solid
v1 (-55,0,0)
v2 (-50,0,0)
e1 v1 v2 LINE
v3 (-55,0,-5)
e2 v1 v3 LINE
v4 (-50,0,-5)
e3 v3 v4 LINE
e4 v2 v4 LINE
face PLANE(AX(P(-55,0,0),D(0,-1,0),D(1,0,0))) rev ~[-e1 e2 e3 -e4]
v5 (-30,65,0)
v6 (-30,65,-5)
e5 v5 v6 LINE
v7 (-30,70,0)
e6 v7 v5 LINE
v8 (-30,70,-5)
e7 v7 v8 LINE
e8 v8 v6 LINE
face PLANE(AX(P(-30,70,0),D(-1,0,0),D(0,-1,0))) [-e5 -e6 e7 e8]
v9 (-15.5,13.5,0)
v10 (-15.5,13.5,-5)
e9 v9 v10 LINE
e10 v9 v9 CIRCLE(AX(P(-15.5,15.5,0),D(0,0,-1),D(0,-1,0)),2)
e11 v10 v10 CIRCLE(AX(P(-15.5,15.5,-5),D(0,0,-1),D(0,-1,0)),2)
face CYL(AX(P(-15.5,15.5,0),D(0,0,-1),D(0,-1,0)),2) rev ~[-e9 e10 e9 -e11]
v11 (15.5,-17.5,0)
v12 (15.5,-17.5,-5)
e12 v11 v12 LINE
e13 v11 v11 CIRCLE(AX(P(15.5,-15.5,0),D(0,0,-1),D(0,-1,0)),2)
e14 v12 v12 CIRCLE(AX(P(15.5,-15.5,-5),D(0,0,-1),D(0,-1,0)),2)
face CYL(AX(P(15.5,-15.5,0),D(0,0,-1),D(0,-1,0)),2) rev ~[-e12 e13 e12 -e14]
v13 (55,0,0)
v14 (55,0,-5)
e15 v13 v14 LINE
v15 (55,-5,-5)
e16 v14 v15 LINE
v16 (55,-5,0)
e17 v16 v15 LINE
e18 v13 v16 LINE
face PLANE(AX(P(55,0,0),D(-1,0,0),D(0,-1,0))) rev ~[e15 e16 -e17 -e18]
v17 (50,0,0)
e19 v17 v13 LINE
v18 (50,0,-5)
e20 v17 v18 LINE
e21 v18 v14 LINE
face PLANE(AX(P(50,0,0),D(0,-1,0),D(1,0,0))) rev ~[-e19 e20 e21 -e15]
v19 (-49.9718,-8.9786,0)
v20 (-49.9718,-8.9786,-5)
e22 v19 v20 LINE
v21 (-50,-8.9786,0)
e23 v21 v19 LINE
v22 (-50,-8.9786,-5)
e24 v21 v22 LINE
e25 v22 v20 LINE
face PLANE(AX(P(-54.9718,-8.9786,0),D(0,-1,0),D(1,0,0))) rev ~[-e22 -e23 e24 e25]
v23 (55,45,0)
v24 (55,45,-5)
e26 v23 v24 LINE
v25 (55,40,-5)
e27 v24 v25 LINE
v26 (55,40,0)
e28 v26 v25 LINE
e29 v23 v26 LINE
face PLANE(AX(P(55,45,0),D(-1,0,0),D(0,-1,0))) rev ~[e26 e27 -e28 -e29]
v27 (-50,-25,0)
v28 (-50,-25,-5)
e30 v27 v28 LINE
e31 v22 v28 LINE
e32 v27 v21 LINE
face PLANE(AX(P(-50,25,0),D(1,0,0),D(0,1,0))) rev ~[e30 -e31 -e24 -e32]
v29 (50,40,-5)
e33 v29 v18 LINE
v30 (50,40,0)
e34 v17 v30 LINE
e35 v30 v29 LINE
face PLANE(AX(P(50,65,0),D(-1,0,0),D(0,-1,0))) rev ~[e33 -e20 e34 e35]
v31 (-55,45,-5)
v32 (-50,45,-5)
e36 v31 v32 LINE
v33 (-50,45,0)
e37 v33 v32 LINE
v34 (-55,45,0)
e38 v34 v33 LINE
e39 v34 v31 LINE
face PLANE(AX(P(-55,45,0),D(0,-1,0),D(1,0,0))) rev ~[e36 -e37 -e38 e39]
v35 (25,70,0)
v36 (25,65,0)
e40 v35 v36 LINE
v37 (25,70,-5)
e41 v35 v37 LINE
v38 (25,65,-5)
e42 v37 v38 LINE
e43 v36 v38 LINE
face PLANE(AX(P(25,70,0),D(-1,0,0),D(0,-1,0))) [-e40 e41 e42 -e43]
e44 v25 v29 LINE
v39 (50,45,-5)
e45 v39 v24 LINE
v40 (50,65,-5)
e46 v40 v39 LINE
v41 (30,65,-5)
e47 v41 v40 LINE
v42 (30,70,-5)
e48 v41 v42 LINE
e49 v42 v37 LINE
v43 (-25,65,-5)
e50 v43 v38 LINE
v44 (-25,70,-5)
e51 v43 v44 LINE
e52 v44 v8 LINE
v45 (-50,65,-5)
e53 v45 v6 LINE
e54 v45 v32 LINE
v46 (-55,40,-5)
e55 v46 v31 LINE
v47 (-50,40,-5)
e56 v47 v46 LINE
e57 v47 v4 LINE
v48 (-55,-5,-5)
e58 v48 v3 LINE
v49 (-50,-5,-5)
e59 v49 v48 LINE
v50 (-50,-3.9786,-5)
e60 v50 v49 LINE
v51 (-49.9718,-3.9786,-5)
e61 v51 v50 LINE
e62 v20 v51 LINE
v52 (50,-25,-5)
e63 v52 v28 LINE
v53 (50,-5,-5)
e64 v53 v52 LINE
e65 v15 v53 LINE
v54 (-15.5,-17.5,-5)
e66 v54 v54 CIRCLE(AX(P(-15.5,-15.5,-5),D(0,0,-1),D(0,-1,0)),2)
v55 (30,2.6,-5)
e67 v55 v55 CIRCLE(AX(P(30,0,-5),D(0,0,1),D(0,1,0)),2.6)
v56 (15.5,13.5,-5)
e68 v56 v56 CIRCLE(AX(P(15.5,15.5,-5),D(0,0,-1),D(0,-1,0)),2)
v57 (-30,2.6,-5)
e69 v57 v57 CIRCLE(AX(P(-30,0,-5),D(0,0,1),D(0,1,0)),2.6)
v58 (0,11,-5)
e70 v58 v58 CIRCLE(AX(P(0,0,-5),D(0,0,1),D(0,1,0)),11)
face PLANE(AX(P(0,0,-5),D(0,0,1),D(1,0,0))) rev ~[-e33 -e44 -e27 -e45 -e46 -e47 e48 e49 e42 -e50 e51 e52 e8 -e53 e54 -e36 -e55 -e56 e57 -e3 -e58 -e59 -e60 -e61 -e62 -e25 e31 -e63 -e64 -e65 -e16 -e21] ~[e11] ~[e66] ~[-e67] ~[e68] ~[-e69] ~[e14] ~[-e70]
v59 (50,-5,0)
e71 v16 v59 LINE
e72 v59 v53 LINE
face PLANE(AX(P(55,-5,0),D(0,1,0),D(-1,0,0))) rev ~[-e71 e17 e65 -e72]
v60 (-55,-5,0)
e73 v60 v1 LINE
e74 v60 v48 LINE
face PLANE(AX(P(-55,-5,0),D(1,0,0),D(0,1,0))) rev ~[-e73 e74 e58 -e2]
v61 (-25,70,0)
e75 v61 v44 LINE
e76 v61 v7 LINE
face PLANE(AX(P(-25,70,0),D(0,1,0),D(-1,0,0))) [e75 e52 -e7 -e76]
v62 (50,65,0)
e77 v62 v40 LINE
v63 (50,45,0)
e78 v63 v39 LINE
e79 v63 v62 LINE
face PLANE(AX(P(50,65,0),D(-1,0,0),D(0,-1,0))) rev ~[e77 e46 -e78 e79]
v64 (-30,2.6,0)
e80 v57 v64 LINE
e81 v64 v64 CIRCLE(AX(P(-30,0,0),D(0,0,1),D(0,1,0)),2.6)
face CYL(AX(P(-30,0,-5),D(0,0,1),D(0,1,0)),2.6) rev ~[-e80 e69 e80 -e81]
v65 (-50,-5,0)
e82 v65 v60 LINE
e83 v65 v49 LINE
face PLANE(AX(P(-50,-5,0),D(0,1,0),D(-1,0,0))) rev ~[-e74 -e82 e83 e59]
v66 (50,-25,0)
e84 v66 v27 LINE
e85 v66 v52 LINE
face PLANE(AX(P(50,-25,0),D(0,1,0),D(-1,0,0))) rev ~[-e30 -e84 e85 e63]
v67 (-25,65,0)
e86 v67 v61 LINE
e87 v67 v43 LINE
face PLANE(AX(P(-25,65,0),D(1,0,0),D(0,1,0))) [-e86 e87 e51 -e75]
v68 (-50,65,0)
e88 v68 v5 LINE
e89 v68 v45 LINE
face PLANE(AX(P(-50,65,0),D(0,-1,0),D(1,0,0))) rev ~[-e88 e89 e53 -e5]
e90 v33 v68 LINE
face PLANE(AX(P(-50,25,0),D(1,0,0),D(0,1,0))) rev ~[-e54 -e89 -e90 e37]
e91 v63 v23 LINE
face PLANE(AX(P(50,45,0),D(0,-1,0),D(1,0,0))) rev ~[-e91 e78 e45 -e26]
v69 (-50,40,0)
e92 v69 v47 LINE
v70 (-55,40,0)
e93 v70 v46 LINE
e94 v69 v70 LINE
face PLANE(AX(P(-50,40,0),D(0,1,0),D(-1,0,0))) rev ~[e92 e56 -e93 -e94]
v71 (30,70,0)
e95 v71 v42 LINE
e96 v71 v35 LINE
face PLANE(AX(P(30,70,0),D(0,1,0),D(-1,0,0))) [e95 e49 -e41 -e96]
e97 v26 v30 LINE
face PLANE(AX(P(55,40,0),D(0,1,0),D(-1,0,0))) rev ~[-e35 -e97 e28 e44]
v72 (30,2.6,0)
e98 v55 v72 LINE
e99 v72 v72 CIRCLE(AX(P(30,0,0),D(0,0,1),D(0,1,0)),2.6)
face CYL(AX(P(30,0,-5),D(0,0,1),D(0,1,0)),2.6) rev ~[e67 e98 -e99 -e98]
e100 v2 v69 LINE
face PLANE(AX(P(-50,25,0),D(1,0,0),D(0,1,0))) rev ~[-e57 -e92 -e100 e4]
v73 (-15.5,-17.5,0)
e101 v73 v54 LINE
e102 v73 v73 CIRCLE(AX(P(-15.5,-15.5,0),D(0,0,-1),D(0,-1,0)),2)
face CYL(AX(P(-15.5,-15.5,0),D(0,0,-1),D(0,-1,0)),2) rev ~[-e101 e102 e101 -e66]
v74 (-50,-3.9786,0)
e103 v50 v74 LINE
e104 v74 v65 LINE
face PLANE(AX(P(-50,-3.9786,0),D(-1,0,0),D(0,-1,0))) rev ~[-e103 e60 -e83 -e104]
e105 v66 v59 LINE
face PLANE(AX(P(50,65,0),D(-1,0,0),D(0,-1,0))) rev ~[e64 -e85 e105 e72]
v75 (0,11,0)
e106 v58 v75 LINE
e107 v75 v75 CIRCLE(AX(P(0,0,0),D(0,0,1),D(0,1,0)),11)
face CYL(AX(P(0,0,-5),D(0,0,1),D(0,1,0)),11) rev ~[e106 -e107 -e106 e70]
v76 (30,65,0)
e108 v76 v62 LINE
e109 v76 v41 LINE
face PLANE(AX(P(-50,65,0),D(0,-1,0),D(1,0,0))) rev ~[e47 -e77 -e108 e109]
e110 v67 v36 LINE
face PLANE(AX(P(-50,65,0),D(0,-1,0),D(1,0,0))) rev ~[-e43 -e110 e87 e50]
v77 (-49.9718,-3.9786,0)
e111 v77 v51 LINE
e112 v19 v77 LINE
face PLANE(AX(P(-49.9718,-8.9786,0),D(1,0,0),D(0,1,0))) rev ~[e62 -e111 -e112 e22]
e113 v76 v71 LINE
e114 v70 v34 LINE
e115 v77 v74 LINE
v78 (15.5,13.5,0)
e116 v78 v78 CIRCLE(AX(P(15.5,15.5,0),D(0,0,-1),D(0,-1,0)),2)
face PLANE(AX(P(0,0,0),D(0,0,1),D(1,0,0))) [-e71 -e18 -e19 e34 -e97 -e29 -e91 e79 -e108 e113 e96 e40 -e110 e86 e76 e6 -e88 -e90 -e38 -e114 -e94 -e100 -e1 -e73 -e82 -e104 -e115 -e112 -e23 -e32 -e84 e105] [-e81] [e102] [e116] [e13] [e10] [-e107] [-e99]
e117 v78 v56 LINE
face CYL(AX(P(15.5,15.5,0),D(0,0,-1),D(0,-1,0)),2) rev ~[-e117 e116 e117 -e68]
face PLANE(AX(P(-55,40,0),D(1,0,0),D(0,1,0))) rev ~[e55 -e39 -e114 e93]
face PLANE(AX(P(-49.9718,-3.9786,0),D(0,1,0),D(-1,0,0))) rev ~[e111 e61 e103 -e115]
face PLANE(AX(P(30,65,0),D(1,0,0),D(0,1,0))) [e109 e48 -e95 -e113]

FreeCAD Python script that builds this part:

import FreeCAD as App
import Part
import Sketcher

V = App.Vector


def add_polygon(sketch, points):
    """Adds a closed chain of lines whose ends are joined by coincident constraints."""
    first, n = sketch.GeometryCount, len(points)
    for a, b in zip(points, points[1:] + points[:1]):
        sketch.addGeometry(Part.LineSegment(App.Vector(*a, 0), App.Vector(*b, 0)), False)
    for i in range(n):
        sketch.addConstraint(Sketcher.Constraint("Coincident", first + i, 2, first + (i + 1) % n, 1))

doc = App.newDocument("Part")
body = doc.addObject("PartDesign::Body", "Body")

sketch1 = body.newObject("Sketcher::SketchObject", "Sketch")
sketch1.AttachmentSupport = (doc.getObject("XY_Plane"), [""])
sketch1.MapMode = "FlatFace"
add_polygon(sketch1, [(-50, -25), (50, -25), (50, 25), (-50, 25)])
sketch1.addConstraint(Sketcher.Constraint("Horizontal", 0))
sketch1.addConstraint(Sketcher.Constraint("Vertical", 1))
sketch1.addConstraint(Sketcher.Constraint("Horizontal", 2))
sketch1.addConstraint(Sketcher.Constraint("Vertical", 3))
sketch1.addConstraint(Sketcher.Constraint("Symmetric", 0, 2, 2, 2, -1, 1))
sketch1.addConstraint(Sketcher.Constraint("DistanceX", 0, 1, 0, 2, 100.0))
sketch1.addConstraint(Sketcher.Constraint("DistanceY", 1, 1, 1, 2, 50.0))
pad1 = body.newObject("PartDesign::Pad", "Pad")
pad1.Profile = sketch1
pad1.Length = 5
pad1.Reversed = True

sketch2 = body.newObject("Sketcher::SketchObject", "Sketch001")
sketch2.AttachmentSupport = (doc.getObject("XY_Plane"), [""])
sketch2.MapMode = "FlatFace"
sketch2.addGeometry(Part.Circle(V(-15.5, 15.5, 0), V(0, 0, 1), 2), False)
sketch2.addGeometry(Part.Circle(V(15.5, 15.5, 0), V(0, 0, 1), 2), False)
sketch2.addGeometry(Part.Circle(V(-15.5, -15.5, 0), V(0, 0, 1), 2), False)
sketch2.addGeometry(Part.Circle(V(15.5, -15.5, 0), V(0, 0, 1), 2), False)
sketch2.addConstraint(Sketcher.Constraint("Equal", 0, 1))
sketch2.addConstraint(Sketcher.Constraint("Equal", 1, 2))
sketch2.addConstraint(Sketcher.Constraint("Equal", 2, 3))
sketch2.addConstraint(Sketcher.Constraint("Symmetric", 1, 3, 2, 3, -1, 1))
sketch2.addConstraint(Sketcher.Constraint("Symmetric", 0, 3, 3, 3, -1, 1))
sketch2.addConstraint(Sketcher.Constraint("Symmetric", 0, 3, 1, 3, -2))
sketch2.addConstraint(Sketcher.Constraint("Diameter", 0, 4.0))
sketch2.addConstraint(Sketcher.Constraint("DistanceX", 0, 3, 1, 3, 31.0))
sketch2.addConstraint(Sketcher.Constraint("DistanceY", 2, 3, 0, 3, 31.0))
doc.recompute()
hole = body.newObject("PartDesign::Hole", "Hole")
hole.Profile = sketch2
hole.ThreadType = "None"
hole.Diameter = 4
hole.DepthType = "ThroughAll"

sketch3 = body.newObject("Sketcher::SketchObject", "Sketch002")
sketch3.AttachmentSupport = (doc.getObject("XY_Plane"), [""])
sketch3.MapMode = "FlatFace"
sketch3.AttachmentOffset = App.Placement(V(0, 0, -5), App.Rotation())
sketch3.addGeometry(Part.Circle(V(30, 0, 0), V(0, 0, 1), 2.6), False)
sketch3.addGeometry(Part.Circle(V(-30, 0, 0), V(0, 0, 1), 2.6), False)
sketch3.addConstraint(Sketcher.Constraint("Equal", 0, 1))
sketch3.addConstraint(Sketcher.Constraint("Symmetric", 0, 3, 1, 3, -1, 1))
sketch3.addConstraint(Sketcher.Constraint("PointOnObject", 0, 3, -1))
sketch3.addConstraint(Sketcher.Constraint("Diameter", 0, 5.2))
sketch3.addConstraint(Sketcher.Constraint("DistanceX", -1, 1, 0, 3, 30.0))
doc.recompute()
hole2 = body.newObject("PartDesign::Hole", "Hole001")
hole2.Profile = sketch3
hole2.ThreadType = "None"
hole2.Diameter = 5.2
hole2.DepthType = "ThroughAll"
hole2.Reversed = True

sketch4 = body.newObject("Sketcher::SketchObject", "Sketch003")
sketch4.AttachmentSupport = (doc.getObject("XY_Plane"), [""])
sketch4.MapMode = "FlatFace"
sketch4.AttachmentOffset = App.Placement(V(0, 0, -5), App.Rotation())
sketch4.addGeometry(Part.Circle(V(0, 0, 0), V(0, 0, 1), 11), False)
sketch4.addConstraint(Sketcher.Constraint("Coincident", 0, 3, -1, 1))
sketch4.addConstraint(Sketcher.Constraint("Diameter", 0, 22.0))
doc.recompute()
hole3 = body.newObject("PartDesign::Hole", "Hole002")
hole3.Profile = sketch4
hole3.ThreadType = "None"
hole3.Diameter = 22
hole3.DepthType = "ThroughAll"
hole3.Reversed = True

sketch5 = body.newObject("Sketcher::SketchObject", "Sketch004")
sketch5.AttachmentSupport = (doc.getObject("XY_Plane"), [""])
sketch5.MapMode = "FlatFace"
add_polygon(sketch5, [(-50, 25), (50, 25), (50, 65), (-50, 65)])
sketch5.addConstraint(Sketcher.Constraint("Horizontal", 0))
sketch5.addConstraint(Sketcher.Constraint("Vertical", 1))
sketch5.addConstraint(Sketcher.Constraint("Horizontal", 2))
sketch5.addConstraint(Sketcher.Constraint("Vertical", 3))
sketch5.addConstraint(Sketcher.Constraint("DistanceY", 1, 1, 1, 2, 40.0))
sketch5.addConstraint(Sketcher.Constraint("DistanceX", 0, 1, 0, 2, 100.0))
sketch5.addConstraint(Sketcher.Constraint("DistanceX", -1, 1, 0, 2, 50.0))
sketch5.addConstraint(Sketcher.Constraint("DistanceY", -1, 1, 0, 2, 25.0))
pad2 = body.newObject("PartDesign::Pad", "Pad001")
pad2.Profile = sketch5
pad2.Length = 5
pad2.Reversed = True

sketch6 = body.newObject("Sketcher::SketchObject", "Sketch005")
sketch6.AttachmentSupport = (doc.getObject("XY_Plane"), [""])
sketch6.MapMode = "FlatFace"
add_polygon(sketch6, [(-50, -9), (-50, -4), (-55, -4), (-55, -9)])
sketch6.addConstraint(Sketcher.Constraint("Vertical", 0))
sketch6.addConstraint(Sketcher.Constraint("Horizontal", 1))
sketch6.addConstraint(Sketcher.Constraint("Vertical", 2))
sketch6.addConstraint(Sketcher.Constraint("Horizontal", 3))
sketch6.addConstraint(Sketcher.Constraint("Equal", 3, 0))
sketch6.addConstraint(Sketcher.Constraint("DistanceX", 1, 2, 1, 1, 5.0))
sketch6.addConstraint(Sketcher.Constraint("DistanceX", 0, 2, -1, 1, 49.9718))
sketch6.addConstraint(Sketcher.Constraint("DistanceY", 0, 2, -1, 1, 3.9786))
pocket1 = body.newObject("PartDesign::Pocket", "Pocket")
pocket1.Profile = sketch6
pocket1.Length = 5

sketch7 = body.newObject("Sketcher::SketchObject", "Sketch006")
sketch7.AttachmentSupport = (doc.getObject("XY_Plane"), [""])
sketch7.MapMode = "FlatFace"
add_polygon(sketch7, [(-55, -5), (-50, -5), (-50, 0), (-55, 0)])
sketch7.addConstraint(Sketcher.Constraint("Horizontal", 0))
sketch7.addConstraint(Sketcher.Constraint("Vertical", 1))
sketch7.addConstraint(Sketcher.Constraint("Horizontal", 2))
sketch7.addConstraint(Sketcher.Constraint("Vertical", 3))
sketch7.addConstraint(Sketcher.Constraint("PointOnObject", 1, 2, -1))
sketch7.addConstraint(Sketcher.Constraint("Equal", 2, 1))
sketch7.addConstraint(Sketcher.Constraint("DistanceX", 0, 1, 0, 2, 5.0))
sketch7.addConstraint(Sketcher.Constraint("DistanceX", 0, 2, -1, 1, 50.0))
pad3 = body.newObject("PartDesign::Pad", "Pad002")
pad3.Profile = sketch7
pad3.Length = 5
pad3.Reversed = True

sketch8 = body.newObject("Sketcher::SketchObject", "Sketch007")
sketch8.AttachmentSupport = (doc.getObject("XY_Plane"), [""])
sketch8.MapMode = "FlatFace"
add_polygon(sketch8, [(55, 0), (50, 0), (50, -5), (55, -5)])
sketch8.addConstraint(Sketcher.Constraint("Horizontal", 0))
sketch8.addConstraint(Sketcher.Constraint("Vertical", 1))
sketch8.addConstraint(Sketcher.Constraint("Horizontal", 2))
sketch8.addConstraint(Sketcher.Constraint("Vertical", 3))
sketch8.addConstraint(Sketcher.Constraint("PointOnObject", 0, 2, -1))
sketch8.addConstraint(Sketcher.Constraint("Equal", 2, 1))
sketch8.addConstraint(Sketcher.Constraint("DistanceX", 0, 2, 0, 1, 5.0))
sketch8.addConstraint(Sketcher.Constraint("DistanceX", -1, 1, 0, 2, 50.0))
pad4 = body.newObject("PartDesign::Pad", "Pad003")
pad4.Profile = sketch8
pad4.Length = 5
pad4.Reversed = True

sketch9 = body.newObject("Sketcher::SketchObject", "Sketch008")
sketch9.AttachmentSupport = (doc.getObject("XY_Plane"), [""])
sketch9.MapMode = "FlatFace"
add_polygon(sketch9, [(-30, 70), (-30, 65), (-25, 65), (-25, 70)])
add_polygon(sketch9, [(25, 70), (25, 65), (30, 65), (30, 70)])
sketch9.addConstraint(Sketcher.Constraint("Vertical", 0))
sketch9.addConstraint(Sketcher.Constraint("Horizontal", 1))
sketch9.addConstraint(Sketcher.Constraint("Vertical", 2))
sketch9.addConstraint(Sketcher.Constraint("Horizontal", 3))
sketch9.addConstraint(Sketcher.Constraint("Vertical", 4))
sketch9.addConstraint(Sketcher.Constraint("Horizontal", 5))
sketch9.addConstraint(Sketcher.Constraint("Vertical", 6))
sketch9.addConstraint(Sketcher.Constraint("Horizontal", 7))
sketch9.addConstraint(Sketcher.Constraint("Symmetric", 1, 2, 4, 2, -2))
sketch9.addConstraint(Sketcher.Constraint("Symmetric", 3, 2, 6, 2, -2))
sketch9.addConstraint(Sketcher.Constraint("Equal", 7, 0))
sketch9.addConstraint(Sketcher.Constraint("DistanceX", 1, 1, 1, 2, 5.0))
sketch9.addConstraint(Sketcher.Constraint("DistanceX", 0, 2, -1, 1, 30.0))
sketch9.addConstraint(Sketcher.Constraint("DistanceY", -1, 1, 0, 2, 65.0))
pad5 = body.newObject("PartDesign::Pad", "Pad004")
pad5.Profile = sketch9
pad5.Length = 5
pad5.Reversed = True

sketch10 = body.newObject("Sketcher::SketchObject", "Sketch009")
sketch10.AttachmentSupport = (doc.getObject("XY_Plane"), [""])
sketch10.MapMode = "FlatFace"
add_polygon(sketch10, [(-55, 40), (-50, 40), (-50, 45), (-55, 45)])
add_polygon(sketch10, [(55, 45), (50, 45), (50, 40), (55, 40)])
sketch10.addConstraint(Sketcher.Constraint("Horizontal", 0))
sketch10.addConstraint(Sketcher.Constraint("Vertical", 1))
sketch10.addConstraint(Sketcher.Constraint("Horizontal", 2))
sketch10.addConstraint(Sketcher.Constraint("Vertical", 3))
sketch10.addConstraint(Sketcher.Constraint("Horizontal", 4))
sketch10.addConstraint(Sketcher.Constraint("Vertical", 5))
sketch10.addConstraint(Sketcher.Constraint("Horizontal", 6))
sketch10.addConstraint(Sketcher.Constraint("Vertical", 7))
sketch10.addConstraint(Sketcher.Constraint("Symmetric", 1, 2, 4, 2, -2))
sketch10.addConstraint(Sketcher.Constraint("Symmetric", 3, 2, 6, 2, -2))
sketch10.addConstraint(Sketcher.Constraint("Equal", 6, 1))
sketch10.addConstraint(Sketcher.Constraint("DistanceX", 0, 1, 0, 2, 5.0))
sketch10.addConstraint(Sketcher.Constraint("DistanceY", -1, 1, 0, 2, 40.0))
sketch10.addConstraint(Sketcher.Constraint("DistanceX", 0, 2, -1, 1, 50.0))
pad6 = body.newObject("PartDesign::Pad", "Pad005")
pad6.Profile = sketch10
pad6.Length = 5
pad6.Reversed = True

doc.recompute()
